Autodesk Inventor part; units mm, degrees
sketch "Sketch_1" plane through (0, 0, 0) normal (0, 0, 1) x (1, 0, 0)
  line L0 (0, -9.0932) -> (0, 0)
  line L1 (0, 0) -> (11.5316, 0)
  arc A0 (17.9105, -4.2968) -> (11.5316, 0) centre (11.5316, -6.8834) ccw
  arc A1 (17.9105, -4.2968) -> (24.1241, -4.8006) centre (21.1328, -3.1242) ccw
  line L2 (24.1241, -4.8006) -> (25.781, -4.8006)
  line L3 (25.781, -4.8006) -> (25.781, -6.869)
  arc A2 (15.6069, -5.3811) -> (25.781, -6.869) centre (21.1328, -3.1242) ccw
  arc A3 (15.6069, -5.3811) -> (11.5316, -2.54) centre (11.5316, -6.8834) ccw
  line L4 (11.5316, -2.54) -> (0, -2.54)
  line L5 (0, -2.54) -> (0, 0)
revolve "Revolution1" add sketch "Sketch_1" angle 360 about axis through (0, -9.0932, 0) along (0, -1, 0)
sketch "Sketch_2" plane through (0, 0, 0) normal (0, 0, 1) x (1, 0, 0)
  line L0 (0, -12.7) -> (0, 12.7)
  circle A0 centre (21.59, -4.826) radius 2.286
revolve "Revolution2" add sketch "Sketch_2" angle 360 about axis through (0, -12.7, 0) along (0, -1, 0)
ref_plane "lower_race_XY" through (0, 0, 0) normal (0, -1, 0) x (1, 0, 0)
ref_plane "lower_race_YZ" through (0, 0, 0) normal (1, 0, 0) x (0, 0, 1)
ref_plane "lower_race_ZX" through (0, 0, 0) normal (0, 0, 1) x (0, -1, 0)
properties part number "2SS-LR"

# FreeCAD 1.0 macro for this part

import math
import FreeCAD as App
import Part
import Sketcher
from FreeCAD import Vector
Q = App.Units.Quantity

doc = App.newDocument("Part")
body = doc.addObject("PartDesign::Body", "Body")

sketch1 = body.newObject("Sketcher::SketchObject", "Sketch")
sketch1.AttachmentSupport = (doc.getObject("XY_Plane"), [""])
sketch1.MapMode = "FlatFace"
sketch1.addGeometry(Part.LineSegment(Vector(0, 0, 0), Vector(0, -2.54, 0)), False)
sketch1.addGeometry(Part.LineSegment(Vector(0, -2.54, 0), Vector(11.5316, -2.54, 0)), False)
sketch1.addGeometry(Part.ArcOfCircle(Part.Circle(Vector(11.5316, -6.8834, 0), Vector(0, 0, 1), 4.343383), math.radians(20.235674), math.radians(90)), False)
sketch1.addGeometry(Part.ArcOfCircle(Part.Circle(Vector(21.1328, -3.1242, 0), Vector(0, 0, 1), 5.969017), math.radians(-157.783807), math.radians(-38.856489)), False)
sketch1.addGeometry(Part.LineSegment(Vector(25.781, -6.869, 0), Vector(25.781, -4.8006, 0)), False)
sketch1.addGeometry(Part.LineSegment(Vector(25.781, -4.8006, 0), Vector(24.1241, -4.8006, 0)), False)
sketch1.addGeometry(Part.ArcOfCircle(Part.Circle(Vector(21.1328, -3.1242, 0), Vector(0, 0, 1), 3.429024), math.radians(-160.003474), math.radians(-29.267371)), False)
sketch1.addGeometry(Part.ArcOfCircle(Part.Circle(Vector(11.5316, -6.8834, 0), Vector(0, 0, 1), 6.883376), math.radians(22.072215), math.radians(90)), False)
sketch1.addGeometry(Part.LineSegment(Vector(11.5316, 0, 0), Vector(0, 0, 0)), False)
sketch1.addConstraint(Sketcher.Constraint("Coincident", 0, 2, 1, 1))
sketch1.addConstraint(Sketcher.Constraint("Tangent", 1, 2, 2, 2))
sketch1.addConstraint(Sketcher.Constraint("Coincident", 2, 1, 3, 1))
sketch1.addConstraint(Sketcher.Constraint("Coincident", 3, 2, 4, 1))
sketch1.addConstraint(Sketcher.Constraint("Coincident", 4, 2, 5, 1))
sketch1.addConstraint(Sketcher.Constraint("Coincident", 5, 2, 6, 2))
sketch1.addConstraint(Sketcher.Constraint("Coincident", 6, 1, 7, 1))
sketch1.addConstraint(Sketcher.Constraint("Tangent", 7, 2, 8, 1))
sketch1.addConstraint(Sketcher.Constraint("Coincident", 8, 2, 0, 1))
sketch1.addConstraint(Sketcher.Constraint("Vertical", 0))
sketch1.addConstraint(Sketcher.Constraint("Horizontal", 1))
sketch1.addConstraint(Sketcher.Constraint("Vertical", 4))
sketch1.addConstraint(Sketcher.Constraint("Horizontal", 5))
sketch1.addConstraint(Sketcher.Constraint("Horizontal", 8))
sketch1.addConstraint(Sketcher.Constraint("Coincident", 8, 2, -1, 1))
sketch1.addConstraint(Sketcher.Constraint("Coincident", 6, 3, 3, 3))
sketch1.addConstraint(Sketcher.Constraint("Coincident", 7, 3, 2, 3))
sketch1.addConstraint(Sketcher.Constraint("DistanceY", 0, 2, 0, 1, Q("0.1 in")))
sketch1.addConstraint(Sketcher.Constraint("Radius", 2, Q("0.171 in")))
sketch1.addConstraint(Sketcher.Constraint("Radius", 3, Q("0.235 in")))
sketch1.addConstraint(Sketcher.Constraint("Radius", 6, Q("0.135 in")))
sketch1.addConstraint(Sketcher.Constraint("DistanceX", 1, 1, 1, 2, Q("0.454 in")))
sketch1.addConstraint(Sketcher.Constraint("DistanceX", -1, 1, 3, 3, Q("0.832 in")))
sketch1.addConstraint(Sketcher.Constraint("DistanceY", 3, 3, -1, 1, Q("0.123 in")))
sketch1.addConstraint(Sketcher.Constraint("DistanceX", -1, 1, 3, 2, Q("1.015 in")))
sketch1.addConstraint(Sketcher.Constraint("DistanceY", 4, 2, -1, 1, Q("0.189 in")))
revolution = body.newObject("PartDesign::Revolution", "Revolution")
revolution.Profile = sketch1
revolution.ReferenceAxis = (sketch1, ["V_Axis"])
revolution.Angle = 360

sketch2 = body.newObject("Sketcher::SketchObject", "Sketch001")
sketch2.AttachmentSupport = (doc.getObject("XY_Plane"), [""])
sketch2.MapMode = "FlatFace"
sketch2.addGeometry(Part.Circle(Vector(21.59, -4.826, 0), Vector(0, 0, 1), 2.286), False)
sketch2.addConstraint(Sketcher.Constraint("Diameter", 0, Q("0.18 in")))
sketch2.addConstraint(Sketcher.Constraint("DistanceX", -1, 1, 0, 3, Q("0.85 in")))
sketch2.addConstraint(Sketcher.Constraint("DistanceY", 0, 3, -1, 1, Q("0.19 in")))
revolution2 = body.newObject("PartDesign::Revolution", "Revolution001")
revolution2.Profile = sketch2
revolution2.ReferenceAxis = (sketch2, ["V_Axis"])
revolution2.Angle = 360

doc.recompute()
